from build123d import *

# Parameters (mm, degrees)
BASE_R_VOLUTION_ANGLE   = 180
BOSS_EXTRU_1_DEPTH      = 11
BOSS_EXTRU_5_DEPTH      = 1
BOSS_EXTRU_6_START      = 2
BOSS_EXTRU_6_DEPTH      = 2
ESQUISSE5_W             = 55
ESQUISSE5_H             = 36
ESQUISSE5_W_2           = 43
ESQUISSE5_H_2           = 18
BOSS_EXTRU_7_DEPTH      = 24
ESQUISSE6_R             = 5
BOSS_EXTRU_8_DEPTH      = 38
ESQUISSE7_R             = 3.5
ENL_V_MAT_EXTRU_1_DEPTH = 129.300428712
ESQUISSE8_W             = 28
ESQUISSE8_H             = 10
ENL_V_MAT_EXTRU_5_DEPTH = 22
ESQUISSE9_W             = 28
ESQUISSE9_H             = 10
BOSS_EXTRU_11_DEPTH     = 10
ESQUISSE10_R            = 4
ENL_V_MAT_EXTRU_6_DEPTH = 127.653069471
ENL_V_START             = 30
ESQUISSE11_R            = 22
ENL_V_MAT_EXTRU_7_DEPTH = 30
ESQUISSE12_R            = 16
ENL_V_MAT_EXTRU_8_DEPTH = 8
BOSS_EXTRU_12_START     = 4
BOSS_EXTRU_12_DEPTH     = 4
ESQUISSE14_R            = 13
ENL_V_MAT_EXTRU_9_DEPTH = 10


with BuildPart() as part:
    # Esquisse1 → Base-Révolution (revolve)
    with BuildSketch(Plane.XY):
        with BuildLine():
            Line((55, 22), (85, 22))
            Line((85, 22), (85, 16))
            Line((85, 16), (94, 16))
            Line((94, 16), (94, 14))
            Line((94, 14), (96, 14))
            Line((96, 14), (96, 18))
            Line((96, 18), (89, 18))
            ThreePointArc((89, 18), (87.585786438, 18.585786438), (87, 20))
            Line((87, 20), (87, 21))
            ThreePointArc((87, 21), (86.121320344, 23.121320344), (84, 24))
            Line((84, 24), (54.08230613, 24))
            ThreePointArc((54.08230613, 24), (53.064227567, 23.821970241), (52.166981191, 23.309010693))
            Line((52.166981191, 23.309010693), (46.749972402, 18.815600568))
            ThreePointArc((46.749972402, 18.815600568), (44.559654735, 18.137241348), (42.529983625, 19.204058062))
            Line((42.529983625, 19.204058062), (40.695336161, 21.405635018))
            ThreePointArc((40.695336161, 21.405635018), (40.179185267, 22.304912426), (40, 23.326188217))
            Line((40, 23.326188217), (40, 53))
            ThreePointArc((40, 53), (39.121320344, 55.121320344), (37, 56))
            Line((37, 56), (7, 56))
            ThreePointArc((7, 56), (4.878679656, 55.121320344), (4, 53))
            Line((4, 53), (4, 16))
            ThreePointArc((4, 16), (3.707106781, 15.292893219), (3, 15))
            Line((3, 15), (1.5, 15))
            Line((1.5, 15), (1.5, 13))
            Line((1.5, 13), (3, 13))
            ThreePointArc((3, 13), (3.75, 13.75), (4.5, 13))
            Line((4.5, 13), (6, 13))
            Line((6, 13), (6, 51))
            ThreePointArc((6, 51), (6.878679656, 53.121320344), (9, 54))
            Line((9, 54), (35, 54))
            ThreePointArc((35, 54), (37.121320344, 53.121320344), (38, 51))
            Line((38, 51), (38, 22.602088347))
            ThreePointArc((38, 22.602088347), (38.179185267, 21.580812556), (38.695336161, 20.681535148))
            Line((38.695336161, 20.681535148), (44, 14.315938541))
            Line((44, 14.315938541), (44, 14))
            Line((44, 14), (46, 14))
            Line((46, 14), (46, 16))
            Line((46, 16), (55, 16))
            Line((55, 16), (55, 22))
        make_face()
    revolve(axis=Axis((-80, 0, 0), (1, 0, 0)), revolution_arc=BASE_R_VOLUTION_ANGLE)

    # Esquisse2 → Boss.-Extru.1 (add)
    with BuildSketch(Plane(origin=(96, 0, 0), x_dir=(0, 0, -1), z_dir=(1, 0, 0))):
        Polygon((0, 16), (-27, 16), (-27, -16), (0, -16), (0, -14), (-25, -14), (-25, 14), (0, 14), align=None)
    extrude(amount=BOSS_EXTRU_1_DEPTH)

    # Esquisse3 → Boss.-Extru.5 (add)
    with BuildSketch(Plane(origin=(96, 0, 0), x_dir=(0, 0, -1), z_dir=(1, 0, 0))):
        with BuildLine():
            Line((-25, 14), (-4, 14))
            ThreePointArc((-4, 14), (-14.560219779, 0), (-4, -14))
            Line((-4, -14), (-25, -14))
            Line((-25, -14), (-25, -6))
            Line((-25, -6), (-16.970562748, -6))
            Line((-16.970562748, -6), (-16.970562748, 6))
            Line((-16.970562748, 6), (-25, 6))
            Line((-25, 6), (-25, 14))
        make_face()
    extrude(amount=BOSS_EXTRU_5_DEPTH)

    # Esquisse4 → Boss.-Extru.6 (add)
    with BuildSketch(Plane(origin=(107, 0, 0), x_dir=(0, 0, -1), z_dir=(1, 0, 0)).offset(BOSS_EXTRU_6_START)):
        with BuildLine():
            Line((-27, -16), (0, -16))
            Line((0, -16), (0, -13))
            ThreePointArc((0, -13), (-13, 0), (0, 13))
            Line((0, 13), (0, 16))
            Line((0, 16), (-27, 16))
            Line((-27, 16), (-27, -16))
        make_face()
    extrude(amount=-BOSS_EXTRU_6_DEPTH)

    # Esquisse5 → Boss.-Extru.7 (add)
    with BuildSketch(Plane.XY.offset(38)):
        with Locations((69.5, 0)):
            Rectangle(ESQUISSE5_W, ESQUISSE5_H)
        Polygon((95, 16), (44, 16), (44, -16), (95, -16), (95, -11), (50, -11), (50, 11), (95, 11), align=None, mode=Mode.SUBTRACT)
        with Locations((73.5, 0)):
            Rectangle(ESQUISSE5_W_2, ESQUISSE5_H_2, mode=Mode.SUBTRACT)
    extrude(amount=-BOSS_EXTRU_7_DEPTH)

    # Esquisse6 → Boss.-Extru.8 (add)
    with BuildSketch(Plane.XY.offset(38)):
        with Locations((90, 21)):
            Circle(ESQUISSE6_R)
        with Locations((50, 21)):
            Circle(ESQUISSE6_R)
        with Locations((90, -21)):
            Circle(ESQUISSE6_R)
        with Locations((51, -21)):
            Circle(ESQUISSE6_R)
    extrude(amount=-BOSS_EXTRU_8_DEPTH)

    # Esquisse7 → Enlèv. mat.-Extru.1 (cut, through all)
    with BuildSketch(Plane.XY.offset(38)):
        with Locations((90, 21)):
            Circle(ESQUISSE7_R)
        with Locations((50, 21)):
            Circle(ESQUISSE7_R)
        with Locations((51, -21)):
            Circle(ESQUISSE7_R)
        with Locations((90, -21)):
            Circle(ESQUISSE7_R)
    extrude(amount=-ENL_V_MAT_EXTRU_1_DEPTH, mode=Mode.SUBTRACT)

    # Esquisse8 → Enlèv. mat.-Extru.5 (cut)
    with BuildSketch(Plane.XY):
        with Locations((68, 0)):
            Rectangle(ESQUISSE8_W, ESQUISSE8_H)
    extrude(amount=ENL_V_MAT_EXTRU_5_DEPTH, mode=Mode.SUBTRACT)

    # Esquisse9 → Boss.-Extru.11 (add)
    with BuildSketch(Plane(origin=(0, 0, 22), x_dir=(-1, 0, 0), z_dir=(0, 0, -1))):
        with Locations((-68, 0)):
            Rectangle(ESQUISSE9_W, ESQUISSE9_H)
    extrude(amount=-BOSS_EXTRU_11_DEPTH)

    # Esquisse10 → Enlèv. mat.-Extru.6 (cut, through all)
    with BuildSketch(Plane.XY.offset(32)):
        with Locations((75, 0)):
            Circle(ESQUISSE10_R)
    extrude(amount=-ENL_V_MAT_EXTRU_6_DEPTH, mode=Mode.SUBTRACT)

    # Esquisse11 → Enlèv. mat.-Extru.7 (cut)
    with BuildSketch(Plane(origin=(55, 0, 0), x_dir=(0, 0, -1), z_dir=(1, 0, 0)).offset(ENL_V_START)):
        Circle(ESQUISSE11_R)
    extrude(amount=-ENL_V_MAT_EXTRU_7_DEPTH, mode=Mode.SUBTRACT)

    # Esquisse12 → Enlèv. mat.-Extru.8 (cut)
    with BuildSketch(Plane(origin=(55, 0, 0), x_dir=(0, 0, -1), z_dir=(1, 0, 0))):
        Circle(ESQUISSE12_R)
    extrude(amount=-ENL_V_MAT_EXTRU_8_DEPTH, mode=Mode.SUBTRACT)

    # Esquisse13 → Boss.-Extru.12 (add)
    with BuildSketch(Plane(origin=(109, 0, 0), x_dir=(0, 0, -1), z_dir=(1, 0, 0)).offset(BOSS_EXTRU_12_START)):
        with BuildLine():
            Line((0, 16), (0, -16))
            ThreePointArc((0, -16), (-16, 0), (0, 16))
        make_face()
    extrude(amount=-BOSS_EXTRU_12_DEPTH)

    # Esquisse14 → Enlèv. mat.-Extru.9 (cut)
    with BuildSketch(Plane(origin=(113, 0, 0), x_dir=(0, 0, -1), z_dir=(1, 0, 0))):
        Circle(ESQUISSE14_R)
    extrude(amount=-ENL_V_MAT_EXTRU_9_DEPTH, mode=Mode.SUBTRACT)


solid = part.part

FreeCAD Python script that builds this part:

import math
import FreeCAD as App
import Part
import Sketcher
from FreeCAD import Vector


def add_polygon(sketch, points):
    """Adds a closed chain of lines whose ends are joined by coincident constraints."""
    first, n = sketch.GeometryCount, len(points)
    for a, b in zip(points, points[1:] + points[:1]):
        sketch.addGeometry(Part.LineSegment(App.Vector(*a, 0), App.Vector(*b, 0)), False)
    for i in range(n):
        sketch.addConstraint(Sketcher.Constraint("Coincident", first + i, 2, first + (i + 1) % n, 1))

doc = App.newDocument("Part")
body = doc.addObject("PartDesign::Body", "Body")

# Sketch on XY plane
sketch1 = doc.addObject("Sketcher::SketchObject", "Sketch")
body.addObject(sketch1)
sketch1.AttachmentSupport = (doc.XY_Plane, [""])
sketch1.MapMode = "FlatFace"
sketch1.addGeometry([
    Part.LineSegment(Vector(55, 22, 0), Vector(85, 22, 0)),  # 0
    Part.LineSegment(Vector(85, 22, 0), Vector(85, 16, 0)),  # 1
    Part.LineSegment(Vector(85, 16, 0), Vector(94, 16, 0)),  # 2
    Part.LineSegment(Vector(94, 16, 0), Vector(94, 14, 0)),  # 3
    Part.LineSegment(Vector(94, 14, 0), Vector(96, 14, 0)),  # 4
    Part.LineSegment(Vector(96, 14, 0), Vector(96, 18, 0)),  # 5
    Part.LineSegment(Vector(96, 18, 0), Vector(89, 18, 0)),  # 6
    Part.ArcOfCircle(Part.Circle(Vector(89, 20, 0), Vector(0, 0, 1), 2), math.radians(-180), math.radians(-90)),  # 7
    Part.LineSegment(Vector(87, 20, 0), Vector(87, 21, 0)),  # 8
    Part.ArcOfCircle(Part.Circle(Vector(84, 21, 0), Vector(0, 0, 1), 3), math.radians(0), math.radians(90)),  # 9
    Part.LineSegment(Vector(84, 24, 0), Vector(54.08, 24, 0)),  # 10
    Part.ArcOfCircle(Part.Circle(Vector(54.08, 21, 0), Vector(0, 0, 1), 3), math.radians(90), math.radians(130)),  # 11
    Part.LineSegment(Vector(52.17, 23.31, 0), Vector(46.75, 18.82, 0)),  # 12
    Part.ArcOfCircle(Part.Circle(Vector(44.83, 21.12, 0), Vector(0, 0, 1), 3), math.radians(-140), math.radians(-50)),  # 13
    Part.LineSegment(Vector(42.53, 19.2, 0), Vector(40.7, 21.41, 0)),  # 14
    Part.ArcOfCircle(Part.Circle(Vector(43, 23.33, 0), Vector(0, 0, 1), 3), math.radians(-180), math.radians(-140)),  # 15
    Part.LineSegment(Vector(40, 23.33, 0), Vector(40, 53, 0)),  # 16
    Part.ArcOfCircle(Part.Circle(Vector(37, 53, 0), Vector(0, 0, 1), 3), math.radians(0), math.radians(90)),  # 17
    Part.LineSegment(Vector(37, 56, 0), Vector(7, 56, 0)),  # 18
    Part.ArcOfCircle(Part.Circle(Vector(7, 53, 0), Vector(0, 0, 1), 3), math.radians(90), math.radians(180)),  # 19
    Part.LineSegment(Vector(4, 53, 0), Vector(4, 16, 0)),  # 20
    Part.ArcOfCircle(Part.Circle(Vector(3, 16, 0), Vector(0, 0, 1), 1), math.radians(-90), math.radians(0)),  # 21
    Part.LineSegment(Vector(3, 15, 0), Vector(1.5, 15, 0)),  # 22
    Part.LineSegment(Vector(1.5, 15, 0), Vector(1.5, 13, 0)),  # 23
    Part.LineSegment(Vector(1.5, 13, 0), Vector(3, 13, 0)),  # 24
    Part.ArcOfCircle(Part.Circle(Vector(3.75, 13, 0), Vector(0, 0, 1), 0.75), math.radians(0), math.radians(180)),  # 25
    Part.LineSegment(Vector(4.5, 13, 0), Vector(6, 13, 0)),  # 26
    Part.LineSegment(Vector(6, 13, 0), Vector(6, 51, 0)),  # 27
    Part.ArcOfCircle(Part.Circle(Vector(9, 51, 0), Vector(0, 0, 1), 3), math.radians(90), math.radians(180)),  # 28
    Part.LineSegment(Vector(9, 54, 0), Vector(35, 54, 0)),  # 29
    Part.ArcOfCircle(Part.Circle(Vector(35, 51, 0), Vector(0, 0, 1), 3), math.radians(0), math.radians(90)),  # 30
    Part.LineSegment(Vector(38, 51, 0), Vector(38, 22.6, 0)),  # 31
    Part.ArcOfCircle(Part.Circle(Vector(41, 22.6, 0), Vector(0, 0, 1), 3), math.radians(-180), math.radians(-140)),  # 32
    Part.LineSegment(Vector(38.7, 20.68, 0), Vector(44, 14.32, 0)),  # 33
    Part.LineSegment(Vector(44, 14.32, 0), Vector(44, 14, 0)),  # 34
    Part.LineSegment(Vector(44, 14, 0), Vector(46, 14, 0)),  # 35
    Part.LineSegment(Vector(46, 14, 0), Vector(46, 16, 0)),  # 36
    Part.LineSegment(Vector(46, 16, 0), Vector(55, 16, 0)),  # 37
    Part.LineSegment(Vector(55, 16, 0), Vector(55, 22, 0)),  # 38
], False)
sketch1.addConstraint([
    Sketcher.Constraint("Coincident", 0, 2, 1, 1),
    Sketcher.Constraint("Coincident", 1, 2, 2, 1),
    Sketcher.Constraint("Coincident", 2, 2, 3, 1),
    Sketcher.Constraint("Coincident", 3, 2, 4, 1),
    Sketcher.Constraint("Coincident", 4, 2, 5, 1),
    Sketcher.Constraint("Coincident", 5, 2, 6, 1),
    Sketcher.Constraint("Tangent", 6, 2, 7, 2),
    Sketcher.Constraint("Tangent", 7, 1, 8, 1),
    Sketcher.Constraint("Tangent", 8, 2, 9, 1),
    Sketcher.Constraint("Tangent", 9, 2, 10, 1),
    Sketcher.Constraint("Tangent", 10, 2, 11, 1),
    Sketcher.Constraint("Tangent", 11, 2, 12, 1),
    Sketcher.Constraint("Tangent", 12, 2, 13, 2),
    Sketcher.Constraint("Tangent", 13, 1, 14, 1),
    Sketcher.Constraint("Tangent", 14, 2, 15, 2),
    Sketcher.Constraint("Tangent", 15, 1, 16, 1),
    Sketcher.Constraint("Tangent", 16, 2, 17, 1),
    Sketcher.Constraint("Tangent", 17, 2, 18, 1),
    Sketcher.Constraint("Tangent", 18, 2, 19, 1),
    Sketcher.Constraint("Tangent", 19, 2, 20, 1),
    Sketcher.Constraint("Tangent", 20, 2, 21, 2),
    Sketcher.Constraint("Tangent", 21, 1, 22, 1),
    Sketcher.Constraint("Coincident", 22, 2, 23, 1),
    Sketcher.Constraint("Coincident", 23, 2, 24, 1),
    Sketcher.Constraint("Coincident", 24, 2, 25, 2),
    Sketcher.Constraint("Coincident", 25, 1, 26, 1),
    Sketcher.Constraint("Coincident", 26, 2, 27, 1),
    Sketcher.Constraint("Tangent", 27, 2, 28, 2),
    Sketcher.Constraint("Tangent", 28, 1, 29, 1),
    Sketcher.Constraint("Tangent", 29, 2, 30, 2),
    Sketcher.Constraint("Tangent", 30, 1, 31, 1),
    Sketcher.Constraint("Tangent", 31, 2, 32, 1),
    Sketcher.Constraint("Tangent", 32, 2, 33, 1),
    Sketcher.Constraint("Coincident", 33, 2, 34, 1),
    Sketcher.Constraint("Coincident", 34, 2, 35, 1),
    Sketcher.Constraint("Coincident", 35, 2, 36, 1),
    Sketcher.Constraint("Coincident", 36, 2, 37, 1),
    Sketcher.Constraint("Coincident", 37, 2, 38, 1),
    Sketcher.Constraint("Coincident", 38, 2, 0, 1),
    Sketcher.Constraint("Horizontal", 0),
    Sketcher.Constraint("Vertical", 1),
    Sketcher.Constraint("Horizontal", 2),
    Sketcher.Constraint("Vertical", 3),
    Sketcher.Constraint("Horizontal", 4),
    Sketcher.Constraint("Vertical", 5),
    Sketcher.Constraint("Horizontal", 6),
    Sketcher.Constraint("Vertical", 8),
    Sketcher.Constraint("Horizontal", 10),
    Sketcher.Constraint("Vertical", 16),
    Sketcher.Constraint("Horizontal", 18),
    Sketcher.Constraint("Vertical", 20),
    Sketcher.Constraint("Horizontal", 22),
    Sketcher.Constraint("Vertical", 23),
    Sketcher.Constraint("Horizontal", 24),
    Sketcher.Constraint("Horizontal", 26),
    Sketcher.Constraint("Vertical", 27),
    Sketcher.Constraint("Horizontal", 29),
    Sketcher.Constraint("Vertical", 31),
    Sketcher.Constraint("Vertical", 34),
    Sketcher.Constraint("Horizontal", 35),
    Sketcher.Constraint("Vertical", 36),
    Sketcher.Constraint("Horizontal", 37),
    Sketcher.Constraint("Vertical", 38),
    Sketcher.Constraint("Equal", 9, 11),
    Sketcher.Constraint("Equal", 11, 13),
    Sketcher.Constraint("Equal", 13, 15),
    Sketcher.Constraint("Equal", 15, 17),
    Sketcher.Constraint("Equal", 17, 19),
    Sketcher.Constraint("Equal", 19, 28),
    Sketcher.Constraint("Equal", 28, 30),
    Sketcher.Constraint("Equal", 30, 32),
    Sketcher.Constraint("Parallel", 14, 33),
    Sketcher.Constraint("Horizontal", 21, 3, 1, 2),
    Sketcher.Constraint("Horizontal", 25, 3, 23, 2),
    Sketcher.Constraint("Horizontal", 24, 2, 25, 1),
    Sketcher.Constraint("Horizontal", 4, 2, 34, 2),
    Sketcher.Constraint("Horizontal", 20, 2, 36, 2),
    Sketcher.Constraint("Vertical", 21, 1, 24, 2),
    Sketcher.Constraint("Equal", 0, 18),
    Sketcher.Constraint("Equal", 24, 26),
    Sketcher.Constraint("Equal", 4, 35),
    Sketcher.Constraint("Equal", 2, 37),
    Sketcher.Constraint("Equal", 35, 3),
    Sketcher.Constraint("Equal", 3, 23),
    Sketcher.Constraint("Radius", 7, 2.0),
    Sketcher.Constraint("Radius", 9, 3.0),
    Sketcher.Constraint("Radius", 21, 1.0),
    Sketcher.Constraint("DistanceX", 0, 1, 0, 2, 30.0),
    Sketcher.Constraint("DistanceX", 2, 1, 2, 2, 9.0),
    Sketcher.Constraint("DistanceX", 4, 1, 4, 2, 2.0),
    Sketcher.Constraint("DistanceX", 6, 2, 6, 1, 7.0),
    Sketcher.Constraint("DistanceX", 29, 1, 29, 2, 26.0),
    Sketcher.Constraint("DistanceY", 1, 2, 1, 1, 6.0),
    Sketcher.Constraint("DistanceY", 5, 1, 5, 2, 4.0),
    Sketcher.Constraint("DistanceY", 8, 1, 8, 2, 1.0),
    Sketcher.Constraint("DistanceY", 20, 2, 20, 1, 37.0),
    Sketcher.Constraint("DistanceY", 27, 1, 27, 2, 38.0),
    Sketcher.Constraint("Radius", 25, 0.75),
    Sketcher.Constraint("DistanceX", 22, 2, 22, 1, 1.5),
    Sketcher.Constraint("DistanceX", -1, 1, 7, 3, 89.0),
    Sketcher.Constraint("DistanceY", -1, 1, 7, 3, 20.0),
    Sketcher.Constraint("DistanceX", -1, 1, 15, 3, 43.0),
    Sketcher.Constraint("DistanceY", 16, 1, 16, 2, 29.673812),
    Sketcher.Constraint("DistanceY", 31, 2, 31, 1, 28.397912),
    Sketcher.Constraint("DistanceY", 34, 2, 34, 1, 0.315939),
    Sketcher.Constraint("DistanceY", -1, 1, 12, 2, 18.815601),
    Sketcher.Constraint("Distance", 12, 7.038091),
])
revolution = doc.addObject("PartDesign::Revolution", "Revolution")
body.addObject(revolution)
revolution.Profile = sketch1
revolution.ReferenceAxis = (sketch1, ["H_Axis"])
revolution.Angle = 180

# Sketch on YZ plane
sketch2 = doc.addObject("Sketcher::SketchObject", "Sketch001")
body.addObject(sketch2)
sketch2.AttachmentSupport = (doc.YZ_Plane, [""])
sketch2.MapMode = "FlatFace"
sketch2.AttachmentOffset = App.Placement(Vector(0, 0, 96), App.Rotation())
add_polygon(sketch2, [(16, 0), (16, 27), (-16, 27), (-16, 0), (-14, 0), (-14, 25), (14, 25), (14, 0)])  # lines 0-7
sketch2.addConstraint([
    Sketcher.Constraint("Vertical", 0),
    Sketcher.Constraint("Horizontal", 1),
    Sketcher.Constraint("Vertical", 2),
    Sketcher.Constraint("Horizontal", 3),
    Sketcher.Constraint("Vertical", 4),
    Sketcher.Constraint("Horizontal", 5),
    Sketcher.Constraint("Vertical", 6),
    Sketcher.Constraint("Horizontal", 7),
    Sketcher.Constraint("Symmetric", 3, 2, 6, 2, -1, 1),
    Sketcher.Constraint("Symmetric", 2, 2, 7, 2, -2),
    Sketcher.Constraint("DistanceX", 1, 2, 1, 1, 32.0),
    Sketcher.Constraint("DistanceX", 3, 1, 3, 2, 2.0),
    Sketcher.Constraint("DistanceY", 0, 1, 0, 2, 27.0),
    Sketcher.Constraint("DistanceY", 4, 1, 4, 2, 25.0),
])
pad1 = doc.addObject("PartDesign::Pad", "Pad")
body.addObject(pad1)
pad1.Profile = sketch2
pad1.Length = 11

# Sketch on YZ plane
sketch3 = doc.addObject("Sketcher::SketchObject", "Sketch002")
body.addObject(sketch3)
sketch3.AttachmentSupport = (doc.YZ_Plane, [""])
sketch3.MapMode = "FlatFace"
sketch3.AttachmentOffset = App.Placement(Vector(0, 0, 96), App.Rotation())
sketch3.addGeometry([
    Part.LineSegment(Vector(14, 4, 0), Vector(14, 25, 0)),  # 0
    Part.LineSegment(Vector(14, 25, 0), Vector(6, 25, 0)),  # 1
    Part.LineSegment(Vector(6, 25, 0), Vector(6, 17, 0)),  # 2
    Part.LineSegment(Vector(6, 17, 0), Vector(-6, 17, 0)),  # 3
    Part.LineSegment(Vector(-6, 17, 0), Vector(-6, 25, 0)),  # 4
    Part.LineSegment(Vector(-6, 25, 0), Vector(-14, 25, 0)),  # 5
    Part.LineSegment(Vector(-14, 25, 0), Vector(-14, 4, 0)),  # 6
    Part.ArcOfCircle(Part.Circle(Vector(0, 0, 0), Vector(0, 0, 1), 15), math.radians(16), math.radians(164)),  # 7
], False)
sketch3.addConstraint([
    Sketcher.Constraint("Coincident", 0, 2, 1, 1),
    Sketcher.Constraint("Coincident", 1, 2, 2, 1),
    Sketcher.Constraint("Coincident", 2, 2, 3, 1),
    Sketcher.Constraint("Coincident", 3, 2, 4, 1),
    Sketcher.Constraint("Coincident", 4, 2, 5, 1),
    Sketcher.Constraint("Coincident", 5, 2, 6, 1),
    Sketcher.Constraint("Coincident", 6, 2, 7, 2),
    Sketcher.Constraint("Coincident", 7, 1, 0, 1),
    Sketcher.Constraint("Vertical", 0),
    Sketcher.Constraint("Horizontal", 1),
    Sketcher.Constraint("Vertical", 2),
    Sketcher.Constraint("Horizontal", 3),
    Sketcher.Constraint("Vertical", 4),
    Sketcher.Constraint("Horizontal", 5),
    Sketcher.Constraint("Vertical", 6),
    Sketcher.Constraint("Coincident", 7, 3, -1, 1),
    Sketcher.Constraint("Symmetric", 1, 2, 4, 2, -2),
    Sketcher.Constraint("Horizontal", 6, 2, 7, 1),
    Sketcher.Constraint("DistanceX", 1, 2, 1, 1, 8.0),
    Sketcher.Constraint("DistanceX", 3, 2, 3, 1, 12.0),
    Sketcher.Constraint("DistanceY", 0, 1, 0, 2, 21.0),
    Sketcher.Constraint("DistanceY", -1, 1, 0, 2, 25.0),
    Sketcher.Constraint("DistanceY", 2, 2, 2, 1, 8.029437),
])
pad2 = doc.addObject("PartDesign::Pad", "Pad001")
body.addObject(pad2)
pad2.Profile = sketch3
pad2.Length = 1

# Sketch on YZ plane
sketch4 = doc.addObject("Sketcher::SketchObject", "Sketch003")
body.addObject(sketch4)
sketch4.AttachmentSupport = (doc.YZ_Plane, [""])
sketch4.MapMode = "FlatFace"
sketch4.AttachmentOffset = App.Placement(Vector(0, 0, 109), App.Rotation())
sketch4.addGeometry([
    Part.LineSegment(Vector(-16, 27, 0), Vector(-16, 0, 0)),  # 0
    Part.LineSegment(Vector(-16, 0, 0), Vector(-13, 0, 0)),  # 1
    Part.ArcOfCircle(Part.Circle(Vector(0, 0, 0), Vector(0, 0, 1), 13), math.radians(0), math.radians(180)),  # 2
    Part.LineSegment(Vector(13, 0, 0), Vector(16, 0, 0)),  # 3
    Part.LineSegment(Vector(16, 0, 0), Vector(16, 27, 0)),  # 4
    Part.LineSegment(Vector(16, 27, 0), Vector(-16, 27, 0)),  # 5
], False)
sketch4.addConstraint([
    Sketcher.Constraint("Coincident", 0, 2, 1, 1),
    Sketcher.Constraint("Coincident", 1, 2, 2, 2),
    Sketcher.Constraint("Coincident", 2, 1, 3, 1),
    Sketcher.Constraint("Coincident", 3, 2, 4, 1),
    Sketcher.Constraint("Coincident", 4, 2, 5, 1),
    Sketcher.Constraint("Coincident", 5, 2, 0, 1),
    Sketcher.Constraint("Vertical", 0),
    Sketcher.Constraint("Horizontal", 1),
    Sketcher.Constraint("Horizontal", 3),
    Sketcher.Constraint("Vertical", 4),
    Sketcher.Constraint("Horizontal", 5),
    Sketcher.Constraint("Coincident", 2, 3, -1, 1),
    Sketcher.Constraint("Symmetric", 0, 2, 3, 2, -1, 1),
    Sketcher.Constraint("PointOnObject", 0, 2, -1),
    Sketcher.Constraint("Radius", 2, 13.0),
    Sketcher.Constraint("DistanceX", 1, 1, 1, 2, 3.0),
    Sketcher.Constraint("DistanceY", 0, 2, 0, 1, 27.0),
])
pad3 = doc.addObject("PartDesign::Pad", "Pad002")
body.addObject(pad3)
pad3.Profile = sketch4
pad3.Length = 2
pad3.Reversed = True

# Sketch on XY plane
sketch5 = doc.addObject("Sketcher::SketchObject", "Sketch004")
body.addObject(sketch5)
sketch5.AttachmentSupport = (doc.XY_Plane, [""])
sketch5.MapMode = "FlatFace"
sketch5.AttachmentOffset = App.Placement(Vector(0, 0, 38), App.Rotation())
add_polygon(sketch5, [(42, 18), (42, -18), (97, -18), (97, 18)])  # lines 0-3
add_polygon(sketch5, [(44, 16), (95, 16), (95, 11), (50, 11), (50, -11), (95, -11), (95, -16), (44, -16)])  # lines 4-11
add_polygon(sketch5, [(95, -9), (52, -9), (52, 9), (95, 9)])  # lines 12-15
sketch5.addConstraint([
    Sketcher.Constraint("Vertical", 0),
    Sketcher.Constraint("Horizontal", 1),
    Sketcher.Constraint("Vertical", 2),
    Sketcher.Constraint("Horizontal", 3),
    Sketcher.Constraint("Horizontal", 4),
    Sketcher.Constraint("Vertical", 5),
    Sketcher.Constraint("Horizontal", 6),
    Sketcher.Constraint("Vertical", 7),
    Sketcher.Constraint("Horizontal", 8),
    Sketcher.Constraint("Vertical", 9),
    Sketcher.Constraint("Horizontal", 10),
    Sketcher.Constraint("Vertical", 11),
    Sketcher.Constraint("Horizontal", 12),
    Sketcher.Constraint("Vertical", 13),
    Sketcher.Constraint("Horizontal", 14),
    Sketcher.Constraint("Vertical", 15),
    Sketcher.Constraint("Symmetric", 5, 2, 8, 2, -1),
    Sketcher.Constraint("Vertical", 9, 2, 14, 2),
    Sketcher.Constraint("Equal", 5, 9),
    Sketcher.Constraint("DistanceX", 1, 1, 1, 2, 55.0),
    Sketcher.Constraint("DistanceX", 4, 1, 4, 2, 51.0),
    Sketcher.Constraint("DistanceX", 6, 2, 6, 1, 45.0),
    Sketcher.Constraint("DistanceX", 12, 2, 12, 1, 43.0),
    Sketcher.Constraint("DistanceY", 0, 2, 0, 1, 36.0),
    Sketcher.Constraint("DistanceY", 5, 2, 5, 1, 5.0),
    Sketcher.Constraint("DistanceY", 7, 2, 7, 1, 22.0),
    Sketcher.Constraint("DistanceY", 13, 1, 13, 2, 18.0),
    Sketcher.Constraint("DistanceX", -1, 1, 0, 2, 42.0),
    Sketcher.Constraint("DistanceY", 0, 2, -1, 1, 18.0),
    Sketcher.Constraint("DistanceX", -1, 1, 4, 2, 95.0),
    Sketcher.Constraint("DistanceY", 12, 2, -1, 1, 9.0),
])
pad4 = doc.addObject("PartDesign::Pad", "Pad003")
body.addObject(pad4)
pad4.Profile = sketch5
pad4.Length = 24
pad4.Reversed = True

# Sketch on XY plane
sketch6 = doc.addObject("Sketcher::SketchObject", "Sketch005")
body.addObject(sketch6)
sketch6.AttachmentSupport = (doc.XY_Plane, [""])
sketch6.MapMode = "FlatFace"
sketch6.AttachmentOffset = App.Placement(Vector(0, 0, 38), App.Rotation())
sketch6.addGeometry([
    Part.Circle(Vector(90, 21, 0), Vector(0, 0, 1), 5),
    Part.Circle(Vector(50, 21, 0), Vector(0, 0, 1), 5),
    Part.Circle(Vector(90, -21, 0), Vector(0, 0, 1), 5),
    Part.Circle(Vector(51, -21, 0), Vector(0, 0, 1), 5),
], False)
sketch6.addConstraint([
    Sketcher.Constraint("Equal", 0, 1),
    Sketcher.Constraint("Equal", 1, 2),
    Sketcher.Constraint("Equal", 2, 3),
    Sketcher.Constraint("Symmetric", 0, 3, 2, 3, -1),
    Sketcher.Constraint("Horizontal", 0, 3, 1, 3),
    Sketcher.Constraint("Horizontal", 2, 3, 3, 3),
    Sketcher.Constraint("Diameter", 0, 10.0),
    Sketcher.Constraint("DistanceX", -1, 1, 0, 3, 90.0),
    Sketcher.Constraint("DistanceY", -1, 1, 0, 3, 21.0),
    Sketcher.Constraint("DistanceX", -1, 1, 1, 3, 50.0),
    Sketcher.Constraint("DistanceX", -1, 1, 3, 3, 51.0),
])
pad5 = doc.addObject("PartDesign::Pad", "Pad004")
body.addObject(pad5)
pad5.Profile = sketch6
pad5.Length = 38
pad5.Reversed = True

# Sketch on XY plane
sketch7 = doc.addObject("Sketcher::SketchObject", "Sketch006")
body.addObject(sketch7)
sketch7.AttachmentSupport = (doc.XY_Plane, [""])
sketch7.MapMode = "FlatFace"
sketch7.AttachmentOffset = App.Placement(Vector(0, 0, 38), App.Rotation())
sketch7.addGeometry([
    Part.Circle(Vector(90, 21, 0), Vector(0, 0, 1), 3.5),
    Part.Circle(Vector(50, 21, 0), Vector(0, 0, 1), 3.5),
    Part.Circle(Vector(51, -21, 0), Vector(0, 0, 1), 3.5),
    Part.Circle(Vector(90, -21, 0), Vector(0, 0, 1), 3.5),
], False)
sketch7.addConstraint([
    Sketcher.Constraint("Equal", 0, 1),
    Sketcher.Constraint("Equal", 1, 2),
    Sketcher.Constraint("Equal", 2, 3),
    Sketcher.Constraint("Symmetric", 0, 3, 3, 3, -1),
    Sketcher.Constraint("Horizontal", 0, 3, 1, 3),
    Sketcher.Constraint("Horizontal", 2, 3, 3, 3),
    Sketcher.Constraint("Diameter", 0, 7.0),
    Sketcher.Constraint("DistanceX", -1, 1, 0, 3, 90.0),
    Sketcher.Constraint("DistanceY", -1, 1, 0, 3, 21.0),
    Sketcher.Constraint("DistanceX", -1, 1, 1, 3, 50.0),
    Sketcher.Constraint("DistanceX", -1, 1, 2, 3, 51.0),
])
pocket1 = doc.addObject("PartDesign::Pocket", "Pocket")
body.addObject(pocket1)
pocket1.Profile = sketch7
pocket1.Type = "ThroughAll"

# Sketch on XY plane
sketch8 = doc.addObject("Sketcher::SketchObject", "Sketch007")
body.addObject(sketch8)
sketch8.AttachmentSupport = (doc.XY_Plane, [""])
sketch8.MapMode = "FlatFace"
add_polygon(sketch8, [(54, 5), (54, -5), (82, -5), (82, 5)])  # lines 0-3
sketch8.addConstraint([
    Sketcher.Constraint("Vertical", 0),
    Sketcher.Constraint("Horizontal", 1),
    Sketcher.Constraint("Vertical", 2),
    Sketcher.Constraint("Horizontal", 3),
    Sketcher.Constraint("DistanceX", 1, 1, 1, 2, 28.0),
    Sketcher.Constraint("DistanceY", 0, 2, 0, 1, 10.0),
    Sketcher.Constraint("DistanceX", -1, 1, 0, 2, 54.0),
    Sketcher.Constraint("DistanceY", 0, 2, -1, 1, 5.0),
])
pocket2 = doc.addObject("PartDesign::Pocket", "Pocket001")
body.addObject(pocket2)
pocket2.Profile = sketch8
pocket2.Length = 22
pocket2.Reversed = True

# Sketch on XY plane
sketch9 = doc.addObject("Sketcher::SketchObject", "Sketch008")
body.addObject(sketch9)
sketch9.AttachmentSupport = (doc.XY_Plane, [""])
sketch9.MapMode = "FlatFace"
sketch9.AttachmentOffset = App.Placement(Vector(0, 0, 22), App.Rotation())
add_polygon(sketch9, [(82, 5), (82, -5), (54, -5), (54, 5)])  # lines 0-3
sketch9.addConstraint([
    Sketcher.Constraint("Vertical", 0),
    Sketcher.Constraint("Horizontal", 1),
    Sketcher.Constraint("Vertical", 2),
    Sketcher.Constraint("Horizontal", 3),
    Sketcher.Constraint("DistanceX", 1, 2, 1, 1, 28.0),
    Sketcher.Constraint("DistanceY", 0, 2, 0, 1, 10.0),
    Sketcher.Constraint("DistanceX", -1, 1, 0, 2, 82.0),
    Sketcher.Constraint("DistanceY", 0, 2, -1, 1, 5.0),
])
pad6 = doc.addObject("PartDesign::Pad", "Pad005")
body.addObject(pad6)
pad6.Profile = sketch9
pad6.Length = 10

# Sketch on XY plane
sketch10 = doc.addObject("Sketcher::SketchObject", "Sketch009")
body.addObject(sketch10)
sketch10.AttachmentSupport = (doc.XY_Plane, [""])
sketch10.MapMode = "FlatFace"
sketch10.AttachmentOffset = App.Placement(Vector(0, 0, 32), App.Rotation())
sketch10.addGeometry(Part.Circle(Vector(75, 0, 0), Vector(0, 0, 1), 4), False)
sketch10.addConstraint([
    Sketcher.Constraint("PointOnObject", 0, 3, -1),
    Sketcher.Constraint("Diameter", 0, 8.0),
    Sketcher.Constraint("DistanceX", -1, 1, 0, 3, 75.0),
])
pocket3 = doc.addObject("PartDesign::Pocket", "Pocket002")
body.addObject(pocket3)
pocket3.Profile = sketch10
pocket3.Type = "ThroughAll"

# Sketch on YZ plane
sketch11 = doc.addObject("Sketcher::SketchObject", "Sketch010")
body.addObject(sketch11)
sketch11.AttachmentSupport = (doc.YZ_Plane, [""])
sketch11.MapMode = "FlatFace"
sketch11.AttachmentOffset = App.Placement(Vector(0, 0, 85), App.Rotation())
sketch11.addGeometry(Part.Circle(Vector(0, 0, 0), Vector(0, 0, 1), 22), False)
sketch11.addConstraint([
    Sketcher.Constraint("Coincident", 0, 3, -1, 1),
    Sketcher.Constraint("Diameter", 0, 44.0),
])
pocket4 = doc.addObject("PartDesign::Pocket", "Pocket003")
body.addObject(pocket4)
pocket4.Profile = sketch11
pocket4.Length = 30

# Sketch on YZ plane
sketch12 = doc.addObject("Sketcher::SketchObject", "Sketch011")
body.addObject(sketch12)
sketch12.AttachmentSupport = (doc.YZ_Plane, [""])
sketch12.MapMode = "FlatFace"
sketch12.AttachmentOffset = App.Placement(Vector(0, 0, 55), App.Rotation())
sketch12.addGeometry(Part.Circle(Vector(0, 0, 0), Vector(0, 0, 1), 16), False)
sketch12.addConstraint([
    Sketcher.Constraint("Coincident", 0, 3, -1, 1),
    Sketcher.Constraint("Diameter", 0, 32.0),
])
pocket5 = doc.addObject("PartDesign::Pocket", "Pocket004")
body.addObject(pocket5)
pocket5.Profile = sketch12
pocket5.Length = 8

# Sketch on YZ plane
sketch13 = doc.addObject("Sketcher::SketchObject", "Sketch012")
body.addObject(sketch13)
sketch13.AttachmentSupport = (doc.YZ_Plane, [""])
sketch13.MapMode = "FlatFace"
sketch13.AttachmentOffset = App.Placement(Vector(0, 0, 113), App.Rotation())
sketch13.addGeometry([
    Part.LineSegment(Vector(-16, 0, 0), Vector(16, 0, 0)),
    Part.ArcOfCircle(Part.Circle(Vector(0, 0, 0), Vector(0, 0, 1), 16), math.radians(0), math.radians(180)),
], False)
sketch13.addConstraint([
    Sketcher.Constraint("Coincident", 0, 1, 1, 2),
    Sketcher.Constraint("Coincident", 1, 1, 0, 2),
    Sketcher.Constraint("Horizontal", 0),
    Sketcher.Constraint("Coincident", 1, 3, -1, 1),
    Sketcher.Constraint("PointOnObject", 0, 1, -1),
    Sketcher.Constraint("Radius", 1, 16.0),
])
pad7 = doc.addObject("PartDesign::Pad", "Pad006")
body.addObject(pad7)
pad7.Profile = sketch13
pad7.Length = 4
pad7.Reversed = True

# Sketch on YZ plane
sketch14 = doc.addObject("Sketcher::SketchObject", "Sketch013")
body.addObject(sketch14)
sketch14.AttachmentSupport = (doc.YZ_Plane, [""])
sketch14.MapMode = "FlatFace"
sketch14.AttachmentOffset = App.Placement(Vector(0, 0, 113), App.Rotation())
sketch14.addGeometry(Part.Circle(Vector(0, 0, 0), Vector(0, 0, 1), 13), False)
sketch14.addConstraint([
    Sketcher.Constraint("Coincident", 0, 3, -1, 1),
    Sketcher.Constraint("Diameter", 0, 26.0),
])
pocket6 = doc.addObject("PartDesign::Pocket", "Pocket005")
body.addObject(pocket6)
pocket6.Profile = sketch14
pocket6.Length = 10

doc.recompute()
